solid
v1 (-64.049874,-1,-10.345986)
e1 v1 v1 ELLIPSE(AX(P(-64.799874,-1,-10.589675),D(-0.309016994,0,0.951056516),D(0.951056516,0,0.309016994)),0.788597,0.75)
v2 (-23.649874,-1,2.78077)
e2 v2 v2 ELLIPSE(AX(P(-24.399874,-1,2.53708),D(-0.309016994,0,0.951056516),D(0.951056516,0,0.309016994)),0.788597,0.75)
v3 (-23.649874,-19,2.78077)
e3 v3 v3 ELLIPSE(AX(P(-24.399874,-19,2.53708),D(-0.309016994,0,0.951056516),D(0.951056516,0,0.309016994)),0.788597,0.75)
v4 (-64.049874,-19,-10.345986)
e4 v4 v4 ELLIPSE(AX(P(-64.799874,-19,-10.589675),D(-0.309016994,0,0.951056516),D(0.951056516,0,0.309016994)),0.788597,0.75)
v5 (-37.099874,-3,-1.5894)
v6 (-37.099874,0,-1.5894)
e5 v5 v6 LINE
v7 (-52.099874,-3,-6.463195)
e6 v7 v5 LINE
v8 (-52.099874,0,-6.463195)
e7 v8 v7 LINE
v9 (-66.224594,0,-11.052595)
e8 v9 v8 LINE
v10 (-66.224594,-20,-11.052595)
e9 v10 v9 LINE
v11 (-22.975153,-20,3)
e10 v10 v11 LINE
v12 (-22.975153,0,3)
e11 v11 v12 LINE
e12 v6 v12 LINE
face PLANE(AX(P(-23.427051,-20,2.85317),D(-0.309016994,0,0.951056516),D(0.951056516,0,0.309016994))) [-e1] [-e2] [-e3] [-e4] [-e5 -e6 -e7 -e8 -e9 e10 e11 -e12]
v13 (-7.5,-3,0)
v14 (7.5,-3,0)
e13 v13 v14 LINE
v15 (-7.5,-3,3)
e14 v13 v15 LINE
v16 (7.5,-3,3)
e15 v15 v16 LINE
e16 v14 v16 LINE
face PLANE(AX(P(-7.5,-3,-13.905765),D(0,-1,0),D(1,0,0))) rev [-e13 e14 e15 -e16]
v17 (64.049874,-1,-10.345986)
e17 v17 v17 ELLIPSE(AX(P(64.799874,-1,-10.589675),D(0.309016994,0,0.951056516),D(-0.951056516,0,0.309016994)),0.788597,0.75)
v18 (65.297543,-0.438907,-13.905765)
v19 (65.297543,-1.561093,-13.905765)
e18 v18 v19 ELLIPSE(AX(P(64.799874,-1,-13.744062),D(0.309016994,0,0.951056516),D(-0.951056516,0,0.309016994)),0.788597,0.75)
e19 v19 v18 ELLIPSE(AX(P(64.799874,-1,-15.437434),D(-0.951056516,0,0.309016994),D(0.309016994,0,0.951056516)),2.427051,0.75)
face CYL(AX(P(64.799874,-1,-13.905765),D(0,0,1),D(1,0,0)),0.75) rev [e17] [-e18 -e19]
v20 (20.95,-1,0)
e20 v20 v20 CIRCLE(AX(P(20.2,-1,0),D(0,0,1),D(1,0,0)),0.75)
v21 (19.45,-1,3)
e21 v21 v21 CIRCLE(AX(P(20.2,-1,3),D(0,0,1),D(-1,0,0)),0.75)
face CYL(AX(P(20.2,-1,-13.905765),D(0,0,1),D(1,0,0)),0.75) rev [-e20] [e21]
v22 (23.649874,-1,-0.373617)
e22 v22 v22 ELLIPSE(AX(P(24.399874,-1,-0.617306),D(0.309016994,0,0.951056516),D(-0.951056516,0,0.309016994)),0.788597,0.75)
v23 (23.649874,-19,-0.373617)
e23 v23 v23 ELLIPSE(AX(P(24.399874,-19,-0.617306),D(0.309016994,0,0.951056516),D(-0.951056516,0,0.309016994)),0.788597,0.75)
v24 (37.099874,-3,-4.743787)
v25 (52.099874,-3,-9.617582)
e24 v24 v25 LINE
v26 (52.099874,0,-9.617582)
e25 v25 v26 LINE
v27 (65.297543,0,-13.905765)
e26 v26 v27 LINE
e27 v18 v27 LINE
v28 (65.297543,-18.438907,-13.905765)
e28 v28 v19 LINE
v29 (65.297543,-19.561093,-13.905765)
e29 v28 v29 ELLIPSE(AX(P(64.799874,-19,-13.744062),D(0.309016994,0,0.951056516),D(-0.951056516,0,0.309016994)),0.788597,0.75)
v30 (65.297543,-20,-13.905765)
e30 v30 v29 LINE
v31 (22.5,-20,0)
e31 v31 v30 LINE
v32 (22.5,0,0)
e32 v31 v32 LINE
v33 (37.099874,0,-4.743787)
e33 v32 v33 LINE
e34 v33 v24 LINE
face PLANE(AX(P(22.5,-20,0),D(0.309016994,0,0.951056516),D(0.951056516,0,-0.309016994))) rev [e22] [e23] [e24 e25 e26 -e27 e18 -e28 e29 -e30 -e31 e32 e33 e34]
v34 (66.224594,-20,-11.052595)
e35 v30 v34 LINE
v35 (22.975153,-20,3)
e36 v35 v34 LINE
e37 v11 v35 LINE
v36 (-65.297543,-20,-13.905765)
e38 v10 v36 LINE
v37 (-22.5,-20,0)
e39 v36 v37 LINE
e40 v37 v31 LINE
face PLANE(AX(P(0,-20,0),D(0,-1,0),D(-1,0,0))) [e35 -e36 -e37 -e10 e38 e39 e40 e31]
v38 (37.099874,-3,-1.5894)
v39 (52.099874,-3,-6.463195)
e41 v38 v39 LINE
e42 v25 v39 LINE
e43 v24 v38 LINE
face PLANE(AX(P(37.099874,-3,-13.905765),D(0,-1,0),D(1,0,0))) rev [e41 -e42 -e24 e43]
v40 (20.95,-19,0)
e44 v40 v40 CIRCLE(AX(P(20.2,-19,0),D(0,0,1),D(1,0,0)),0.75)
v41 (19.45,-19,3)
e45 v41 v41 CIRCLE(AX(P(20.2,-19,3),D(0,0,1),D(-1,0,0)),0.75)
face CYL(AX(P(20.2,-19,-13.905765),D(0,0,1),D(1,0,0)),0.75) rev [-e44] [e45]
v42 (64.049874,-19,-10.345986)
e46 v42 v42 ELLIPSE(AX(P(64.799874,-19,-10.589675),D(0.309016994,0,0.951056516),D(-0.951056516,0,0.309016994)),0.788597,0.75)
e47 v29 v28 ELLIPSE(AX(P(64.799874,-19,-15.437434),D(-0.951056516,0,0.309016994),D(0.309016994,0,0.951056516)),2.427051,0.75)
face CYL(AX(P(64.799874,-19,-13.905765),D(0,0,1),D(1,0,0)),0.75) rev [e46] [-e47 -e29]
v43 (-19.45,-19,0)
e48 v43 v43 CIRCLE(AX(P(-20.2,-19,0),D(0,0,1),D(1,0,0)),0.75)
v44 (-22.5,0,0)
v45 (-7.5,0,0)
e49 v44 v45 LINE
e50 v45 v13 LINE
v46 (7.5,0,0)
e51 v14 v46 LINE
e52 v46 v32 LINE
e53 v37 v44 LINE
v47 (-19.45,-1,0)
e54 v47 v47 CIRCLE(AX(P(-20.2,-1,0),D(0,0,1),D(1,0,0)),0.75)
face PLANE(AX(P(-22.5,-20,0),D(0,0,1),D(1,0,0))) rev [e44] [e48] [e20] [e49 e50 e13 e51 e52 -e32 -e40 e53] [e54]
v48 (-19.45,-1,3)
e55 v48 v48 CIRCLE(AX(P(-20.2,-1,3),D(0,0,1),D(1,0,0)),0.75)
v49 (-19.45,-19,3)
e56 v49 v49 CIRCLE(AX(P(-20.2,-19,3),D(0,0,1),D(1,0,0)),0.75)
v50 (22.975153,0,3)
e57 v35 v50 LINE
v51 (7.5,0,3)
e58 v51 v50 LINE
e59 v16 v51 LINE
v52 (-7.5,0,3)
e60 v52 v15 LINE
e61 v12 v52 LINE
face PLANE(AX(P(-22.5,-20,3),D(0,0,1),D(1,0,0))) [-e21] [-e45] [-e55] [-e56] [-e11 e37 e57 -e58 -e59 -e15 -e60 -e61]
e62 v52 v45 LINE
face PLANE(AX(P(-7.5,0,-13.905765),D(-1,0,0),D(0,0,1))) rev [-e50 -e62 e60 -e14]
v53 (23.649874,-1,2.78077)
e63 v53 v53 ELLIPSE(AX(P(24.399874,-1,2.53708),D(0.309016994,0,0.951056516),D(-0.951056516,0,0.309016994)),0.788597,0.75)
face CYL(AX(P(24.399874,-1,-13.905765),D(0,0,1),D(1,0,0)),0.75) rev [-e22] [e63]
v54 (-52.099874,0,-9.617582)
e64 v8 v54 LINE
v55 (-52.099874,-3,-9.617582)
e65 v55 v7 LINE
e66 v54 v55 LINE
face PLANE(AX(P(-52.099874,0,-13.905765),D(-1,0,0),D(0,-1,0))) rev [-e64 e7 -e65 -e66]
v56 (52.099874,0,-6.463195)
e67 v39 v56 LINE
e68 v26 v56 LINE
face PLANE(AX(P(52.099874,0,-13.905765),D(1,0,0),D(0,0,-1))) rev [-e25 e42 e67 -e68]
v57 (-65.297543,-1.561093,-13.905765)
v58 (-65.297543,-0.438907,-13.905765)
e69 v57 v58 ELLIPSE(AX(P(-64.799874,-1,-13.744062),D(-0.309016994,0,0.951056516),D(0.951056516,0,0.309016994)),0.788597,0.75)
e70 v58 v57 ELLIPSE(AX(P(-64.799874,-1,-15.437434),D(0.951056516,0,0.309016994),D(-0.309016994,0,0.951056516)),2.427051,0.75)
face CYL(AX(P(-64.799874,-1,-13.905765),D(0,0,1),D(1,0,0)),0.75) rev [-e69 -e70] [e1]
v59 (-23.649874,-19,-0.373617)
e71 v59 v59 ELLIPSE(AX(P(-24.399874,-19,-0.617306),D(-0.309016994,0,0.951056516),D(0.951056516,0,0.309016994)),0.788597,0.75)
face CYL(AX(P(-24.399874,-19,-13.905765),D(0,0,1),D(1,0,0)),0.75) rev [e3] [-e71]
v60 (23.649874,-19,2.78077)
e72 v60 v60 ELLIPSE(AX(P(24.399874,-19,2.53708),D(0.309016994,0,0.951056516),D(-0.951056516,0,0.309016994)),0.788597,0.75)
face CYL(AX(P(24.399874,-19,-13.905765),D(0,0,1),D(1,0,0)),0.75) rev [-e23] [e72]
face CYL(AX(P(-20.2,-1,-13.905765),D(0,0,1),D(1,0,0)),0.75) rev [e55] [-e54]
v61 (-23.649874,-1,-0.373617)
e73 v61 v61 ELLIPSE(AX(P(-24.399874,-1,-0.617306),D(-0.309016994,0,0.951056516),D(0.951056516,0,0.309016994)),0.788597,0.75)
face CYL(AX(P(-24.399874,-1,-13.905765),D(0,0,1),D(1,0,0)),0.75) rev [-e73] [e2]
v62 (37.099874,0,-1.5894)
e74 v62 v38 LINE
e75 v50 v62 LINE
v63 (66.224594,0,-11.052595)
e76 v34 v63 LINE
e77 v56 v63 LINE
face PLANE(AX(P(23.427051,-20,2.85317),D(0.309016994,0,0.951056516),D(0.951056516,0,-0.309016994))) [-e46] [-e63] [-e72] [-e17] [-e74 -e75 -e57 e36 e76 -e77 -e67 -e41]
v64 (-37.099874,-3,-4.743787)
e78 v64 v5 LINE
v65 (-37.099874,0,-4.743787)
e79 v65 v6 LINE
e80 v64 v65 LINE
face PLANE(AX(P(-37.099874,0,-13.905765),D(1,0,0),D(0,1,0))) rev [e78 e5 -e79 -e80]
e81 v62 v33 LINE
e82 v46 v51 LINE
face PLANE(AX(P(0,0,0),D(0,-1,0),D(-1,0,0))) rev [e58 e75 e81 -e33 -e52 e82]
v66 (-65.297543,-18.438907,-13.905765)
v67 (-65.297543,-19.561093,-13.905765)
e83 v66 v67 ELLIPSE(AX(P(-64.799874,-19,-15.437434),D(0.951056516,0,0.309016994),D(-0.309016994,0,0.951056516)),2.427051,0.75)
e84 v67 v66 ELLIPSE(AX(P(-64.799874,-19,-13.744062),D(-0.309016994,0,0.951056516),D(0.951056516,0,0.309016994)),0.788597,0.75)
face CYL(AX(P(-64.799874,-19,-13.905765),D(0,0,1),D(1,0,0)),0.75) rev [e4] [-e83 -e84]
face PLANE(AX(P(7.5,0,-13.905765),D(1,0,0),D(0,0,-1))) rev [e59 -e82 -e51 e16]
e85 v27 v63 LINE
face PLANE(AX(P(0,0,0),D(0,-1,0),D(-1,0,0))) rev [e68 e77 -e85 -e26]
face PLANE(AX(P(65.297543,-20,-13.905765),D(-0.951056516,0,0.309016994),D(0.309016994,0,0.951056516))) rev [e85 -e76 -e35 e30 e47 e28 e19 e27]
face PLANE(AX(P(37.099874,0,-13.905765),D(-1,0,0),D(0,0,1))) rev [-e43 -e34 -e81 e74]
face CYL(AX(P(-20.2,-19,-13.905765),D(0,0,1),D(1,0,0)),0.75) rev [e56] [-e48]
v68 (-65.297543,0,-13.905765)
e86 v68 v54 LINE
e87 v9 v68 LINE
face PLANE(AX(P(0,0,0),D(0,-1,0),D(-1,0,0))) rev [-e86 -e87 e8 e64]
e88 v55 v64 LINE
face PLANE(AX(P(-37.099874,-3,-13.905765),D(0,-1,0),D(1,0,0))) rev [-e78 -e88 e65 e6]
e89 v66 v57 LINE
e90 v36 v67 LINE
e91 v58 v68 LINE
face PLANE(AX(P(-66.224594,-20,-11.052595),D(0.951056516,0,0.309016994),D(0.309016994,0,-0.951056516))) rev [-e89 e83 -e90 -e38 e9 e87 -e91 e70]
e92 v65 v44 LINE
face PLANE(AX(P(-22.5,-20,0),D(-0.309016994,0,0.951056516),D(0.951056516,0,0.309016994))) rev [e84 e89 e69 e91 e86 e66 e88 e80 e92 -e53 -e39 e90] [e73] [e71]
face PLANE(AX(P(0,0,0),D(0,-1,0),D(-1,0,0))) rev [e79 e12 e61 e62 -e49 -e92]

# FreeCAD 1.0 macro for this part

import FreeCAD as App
import Part
import Sketcher
Q = App.Units.Quantity


def add_polygon(sketch, points):
    """Adds a closed chain of lines whose ends are joined by coincident constraints."""
    first, n = sketch.GeometryCount, len(points)
    for a, b in zip(points, points[1:] + points[:1]):
        sketch.addGeometry(Part.LineSegment(App.Vector(*a, 0), App.Vector(*b, 0)), False)
    for i in range(n):
        sketch.addConstraint(Sketcher.Constraint("Coincident", first + i, 2, first + (i + 1) % n, 1))

doc = App.newDocument("Part")
body = doc.addObject("PartDesign::Body", "Body")

# Sketch on XZ plane
sketch1 = doc.addObject("Sketcher::SketchObject", "Sketch")
body.addObject(sketch1)
sketch1.AttachmentSupport = (doc.XZ_Plane, [""])
sketch1.MapMode = "FlatFace"
add_polygon(sketch1, [(-22.5, 0), (-65.3, -13.9), (-66.2, -11.1), (-23, 3), (23, 3), (66.2, -11.1), (65.3, -13.9), (22.5, 0)])  # lines 0-7
sketch1.addConstraint([
    Sketcher.Constraint("Horizontal", 3),
    Sketcher.Constraint("Horizontal", 7),
    Sketcher.Constraint("Symmetric", 6, 2, 7, 2, -1, 1),
    Sketcher.Constraint("Symmetric", 1, 2, 4, 2, -2),
    Sketcher.Constraint("Symmetric", 0, 2, 5, 2, -2),
    Sketcher.Constraint("Perpendicular", 0, 1),
    Sketcher.Constraint("Perpendicular", 1, 2),
    Sketcher.Constraint("Perpendicular", 4, 5),
    Sketcher.Constraint("DistanceX", 7, 2, 7, 1, Q("45 mm")),
    Sketcher.Constraint("Angle", 0, Q("-162 deg")),
    Sketcher.Constraint("Distance", 0, Q("45 mm")),
    Sketcher.Constraint("Distance", 1, Q("3 mm")),
    Sketcher.Constraint("DistanceY", -1, 1, 2, 2, Q("3 mm")),
])
pad1 = doc.addObject("PartDesign::Pad", "Pad")
body.addObject(pad1)
pad1.Profile = sketch1
pad1.Length = 20

# Sketch on XY plane
sketch2 = doc.addObject("Sketcher::SketchObject", "Sketch001")
body.addObject(sketch2)
sketch2.AttachmentSupport = (doc.XY_Plane, [""])
sketch2.MapMode = "FlatFace"
sketch2.AttachmentOffset = App.Placement(App.Vector(0, 0, 3), App.Rotation())
sketch2.addGeometry(Part.Circle(App.Vector(-64.8, -1, 0), App.Vector(0, 0, 1), 0.8), False)  # 0
sketch2.addGeometry(Part.Circle(App.Vector(-24.4, -1, 0), App.Vector(0, 0, 1), 0.8), False)  # 1
sketch2.addGeometry(Part.Circle(App.Vector(-24.4, -19, 0), App.Vector(0, 0, 1), 0.8), False)  # 2
sketch2.addGeometry(Part.Circle(App.Vector(-64.8, -19, 0), App.Vector(0, 0, 1), 0.8), False)  # 3
sketch2.addGeometry(Part.Circle(App.Vector(64.8, -1, 0), App.Vector(0, 0, 1), 0.8), False)  # 4
sketch2.addGeometry(Part.Circle(App.Vector(24.4, -1, 0), App.Vector(0, 0, 1), 0.8), False)  # 5
sketch2.addGeometry(Part.Circle(App.Vector(24.4, -19, 0), App.Vector(0, 0, 1), 0.8), False)  # 6
sketch2.addGeometry(Part.Circle(App.Vector(64.8, -19, 0), App.Vector(0, 0, 1), 0.8), False)  # 7
sketch2.addGeometry(Part.Circle(App.Vector(-20.2, -1, 0), App.Vector(0, 0, 1), 0.8), False)  # 8
sketch2.addGeometry(Part.Circle(App.Vector(-20.2, -19, 0), App.Vector(0, 0, 1), 0.8), False)  # 9
sketch2.addGeometry(Part.Circle(App.Vector(20.2, -19, 0), App.Vector(0, 0, 1), 0.8), False)  # 10
sketch2.addGeometry(Part.Circle(App.Vector(20.2, -1, 0), App.Vector(0, 0, 1), 0.8), False)  # 11
add_polygon(sketch2, [(-7.5, 0), (-7.5, -3), (7.5, -3), (7.5, 0)])  # lines 12-15
add_polygon(sketch2, [(37.1, 0), (37.1, -3), (52.1, -3), (52.1, 0)])  # lines 16-19
add_polygon(sketch2, [(-52.1, 0), (-52.1, -3), (-37.1, -3), (-37.1, 0)])  # lines 20-23
sketch2.addConstraint([
    Sketcher.Constraint("Vertical", 12),
    Sketcher.Constraint("Horizontal", 13),
    Sketcher.Constraint("Vertical", 14),
    Sketcher.Constraint("Horizontal", 15),
    Sketcher.Constraint("Vertical", 16),
    Sketcher.Constraint("Horizontal", 17),
    Sketcher.Constraint("Vertical", 18),
    Sketcher.Constraint("Horizontal", 19),
    Sketcher.Constraint("Vertical", 20),
    Sketcher.Constraint("Horizontal", 21),
    Sketcher.Constraint("Vertical", 22),
    Sketcher.Constraint("Horizontal", 23),
    Sketcher.Constraint("Equal", 0, 1),
    Sketcher.Constraint("Equal", 1, 2),
    Sketcher.Constraint("Equal", 2, 3),
    Sketcher.Constraint("Equal", 3, 4),
    Sketcher.Constraint("Equal", 4, 5),
    Sketcher.Constraint("Equal", 5, 6),
    Sketcher.Constraint("Equal", 6, 7),
    Sketcher.Constraint("Equal", 7, 8),
    Sketcher.Constraint("Equal", 8, 9),
    Sketcher.Constraint("Equal", 9, 10),
    Sketcher.Constraint("Equal", 10, 11),
    Sketcher.Constraint("Symmetric", 14, 2, 15, 2, -1, 1),
    Sketcher.Constraint("Symmetric", 19, 2, 22, 2, -1, 1),
    Sketcher.Constraint("Symmetric", 0, 3, 4, 3, -2),
    Sketcher.Constraint("Symmetric", 1, 3, 5, 3, -2),
    Sketcher.Constraint("Symmetric", 2, 3, 6, 3, -2),
    Sketcher.Constraint("Symmetric", 3, 3, 7, 3, -2),
    Sketcher.Constraint("Symmetric", 9, 3, 10, 3, -2),
    Sketcher.Constraint("Symmetric", 8, 3, 11, 3, -2),
    Sketcher.Constraint("Symmetric", 17, 2, 20, 2, -2),
    Sketcher.Constraint("PointOnObject", 18, 2, -1),
    Sketcher.Constraint("Horizontal", 0, 3, 1, 3),
    Sketcher.Constraint("Horizontal", 2, 3, 3, 3),
    Sketcher.Constraint("Horizontal", 5, 3, 8, 3),
    Sketcher.Constraint("Horizontal", 7, 3, 9, 3),
    Sketcher.Constraint("Horizontal", 13, 2, 16, 2),
    Sketcher.Constraint("Vertical", 1, 3, 2, 3),
    Sketcher.Constraint("Vertical", 0, 3, 3, 3),
    Sketcher.Constraint("Vertical", 8, 3, 9, 3),
    Sketcher.Constraint("Equal", 15, 17),
    Sketcher.Constraint("Diameter", 0, Q("1.5 mm")),
    Sketcher.Constraint("DistanceX", 13, 1, 13, 2, Q("15 mm")),
    Sketcher.Constraint("DistanceY", 12, 2, 12, 1, Q("3 mm")),
    Sketcher.Constraint("DistanceY", 0, 3, -1, 1, Q("1 mm")),
    Sketcher.Constraint("DistanceY", 2, 3, -1, 1, Q("19 mm")),
    Sketcher.Constraint("DistanceX", 8, 3, -1, 1, Q("20.2 mm")),
    Sketcher.Constraint("DistanceX", 0, 3, 1, 3, Q("40.4 mm")),
    Sketcher.Constraint("DistanceX", 5, 3, 16, 2, Q("12.7 mm")),
    Sketcher.Constraint("DistanceX", 0, 3, -1, 1, Q("64.799874 mm")),
])
pocket1 = doc.addObject("PartDesign::Pocket", "Pocket")
body.addObject(pocket1)
pocket1.Profile = sketch2
pocket1.Type = "ThroughAll"

doc.recompute()
